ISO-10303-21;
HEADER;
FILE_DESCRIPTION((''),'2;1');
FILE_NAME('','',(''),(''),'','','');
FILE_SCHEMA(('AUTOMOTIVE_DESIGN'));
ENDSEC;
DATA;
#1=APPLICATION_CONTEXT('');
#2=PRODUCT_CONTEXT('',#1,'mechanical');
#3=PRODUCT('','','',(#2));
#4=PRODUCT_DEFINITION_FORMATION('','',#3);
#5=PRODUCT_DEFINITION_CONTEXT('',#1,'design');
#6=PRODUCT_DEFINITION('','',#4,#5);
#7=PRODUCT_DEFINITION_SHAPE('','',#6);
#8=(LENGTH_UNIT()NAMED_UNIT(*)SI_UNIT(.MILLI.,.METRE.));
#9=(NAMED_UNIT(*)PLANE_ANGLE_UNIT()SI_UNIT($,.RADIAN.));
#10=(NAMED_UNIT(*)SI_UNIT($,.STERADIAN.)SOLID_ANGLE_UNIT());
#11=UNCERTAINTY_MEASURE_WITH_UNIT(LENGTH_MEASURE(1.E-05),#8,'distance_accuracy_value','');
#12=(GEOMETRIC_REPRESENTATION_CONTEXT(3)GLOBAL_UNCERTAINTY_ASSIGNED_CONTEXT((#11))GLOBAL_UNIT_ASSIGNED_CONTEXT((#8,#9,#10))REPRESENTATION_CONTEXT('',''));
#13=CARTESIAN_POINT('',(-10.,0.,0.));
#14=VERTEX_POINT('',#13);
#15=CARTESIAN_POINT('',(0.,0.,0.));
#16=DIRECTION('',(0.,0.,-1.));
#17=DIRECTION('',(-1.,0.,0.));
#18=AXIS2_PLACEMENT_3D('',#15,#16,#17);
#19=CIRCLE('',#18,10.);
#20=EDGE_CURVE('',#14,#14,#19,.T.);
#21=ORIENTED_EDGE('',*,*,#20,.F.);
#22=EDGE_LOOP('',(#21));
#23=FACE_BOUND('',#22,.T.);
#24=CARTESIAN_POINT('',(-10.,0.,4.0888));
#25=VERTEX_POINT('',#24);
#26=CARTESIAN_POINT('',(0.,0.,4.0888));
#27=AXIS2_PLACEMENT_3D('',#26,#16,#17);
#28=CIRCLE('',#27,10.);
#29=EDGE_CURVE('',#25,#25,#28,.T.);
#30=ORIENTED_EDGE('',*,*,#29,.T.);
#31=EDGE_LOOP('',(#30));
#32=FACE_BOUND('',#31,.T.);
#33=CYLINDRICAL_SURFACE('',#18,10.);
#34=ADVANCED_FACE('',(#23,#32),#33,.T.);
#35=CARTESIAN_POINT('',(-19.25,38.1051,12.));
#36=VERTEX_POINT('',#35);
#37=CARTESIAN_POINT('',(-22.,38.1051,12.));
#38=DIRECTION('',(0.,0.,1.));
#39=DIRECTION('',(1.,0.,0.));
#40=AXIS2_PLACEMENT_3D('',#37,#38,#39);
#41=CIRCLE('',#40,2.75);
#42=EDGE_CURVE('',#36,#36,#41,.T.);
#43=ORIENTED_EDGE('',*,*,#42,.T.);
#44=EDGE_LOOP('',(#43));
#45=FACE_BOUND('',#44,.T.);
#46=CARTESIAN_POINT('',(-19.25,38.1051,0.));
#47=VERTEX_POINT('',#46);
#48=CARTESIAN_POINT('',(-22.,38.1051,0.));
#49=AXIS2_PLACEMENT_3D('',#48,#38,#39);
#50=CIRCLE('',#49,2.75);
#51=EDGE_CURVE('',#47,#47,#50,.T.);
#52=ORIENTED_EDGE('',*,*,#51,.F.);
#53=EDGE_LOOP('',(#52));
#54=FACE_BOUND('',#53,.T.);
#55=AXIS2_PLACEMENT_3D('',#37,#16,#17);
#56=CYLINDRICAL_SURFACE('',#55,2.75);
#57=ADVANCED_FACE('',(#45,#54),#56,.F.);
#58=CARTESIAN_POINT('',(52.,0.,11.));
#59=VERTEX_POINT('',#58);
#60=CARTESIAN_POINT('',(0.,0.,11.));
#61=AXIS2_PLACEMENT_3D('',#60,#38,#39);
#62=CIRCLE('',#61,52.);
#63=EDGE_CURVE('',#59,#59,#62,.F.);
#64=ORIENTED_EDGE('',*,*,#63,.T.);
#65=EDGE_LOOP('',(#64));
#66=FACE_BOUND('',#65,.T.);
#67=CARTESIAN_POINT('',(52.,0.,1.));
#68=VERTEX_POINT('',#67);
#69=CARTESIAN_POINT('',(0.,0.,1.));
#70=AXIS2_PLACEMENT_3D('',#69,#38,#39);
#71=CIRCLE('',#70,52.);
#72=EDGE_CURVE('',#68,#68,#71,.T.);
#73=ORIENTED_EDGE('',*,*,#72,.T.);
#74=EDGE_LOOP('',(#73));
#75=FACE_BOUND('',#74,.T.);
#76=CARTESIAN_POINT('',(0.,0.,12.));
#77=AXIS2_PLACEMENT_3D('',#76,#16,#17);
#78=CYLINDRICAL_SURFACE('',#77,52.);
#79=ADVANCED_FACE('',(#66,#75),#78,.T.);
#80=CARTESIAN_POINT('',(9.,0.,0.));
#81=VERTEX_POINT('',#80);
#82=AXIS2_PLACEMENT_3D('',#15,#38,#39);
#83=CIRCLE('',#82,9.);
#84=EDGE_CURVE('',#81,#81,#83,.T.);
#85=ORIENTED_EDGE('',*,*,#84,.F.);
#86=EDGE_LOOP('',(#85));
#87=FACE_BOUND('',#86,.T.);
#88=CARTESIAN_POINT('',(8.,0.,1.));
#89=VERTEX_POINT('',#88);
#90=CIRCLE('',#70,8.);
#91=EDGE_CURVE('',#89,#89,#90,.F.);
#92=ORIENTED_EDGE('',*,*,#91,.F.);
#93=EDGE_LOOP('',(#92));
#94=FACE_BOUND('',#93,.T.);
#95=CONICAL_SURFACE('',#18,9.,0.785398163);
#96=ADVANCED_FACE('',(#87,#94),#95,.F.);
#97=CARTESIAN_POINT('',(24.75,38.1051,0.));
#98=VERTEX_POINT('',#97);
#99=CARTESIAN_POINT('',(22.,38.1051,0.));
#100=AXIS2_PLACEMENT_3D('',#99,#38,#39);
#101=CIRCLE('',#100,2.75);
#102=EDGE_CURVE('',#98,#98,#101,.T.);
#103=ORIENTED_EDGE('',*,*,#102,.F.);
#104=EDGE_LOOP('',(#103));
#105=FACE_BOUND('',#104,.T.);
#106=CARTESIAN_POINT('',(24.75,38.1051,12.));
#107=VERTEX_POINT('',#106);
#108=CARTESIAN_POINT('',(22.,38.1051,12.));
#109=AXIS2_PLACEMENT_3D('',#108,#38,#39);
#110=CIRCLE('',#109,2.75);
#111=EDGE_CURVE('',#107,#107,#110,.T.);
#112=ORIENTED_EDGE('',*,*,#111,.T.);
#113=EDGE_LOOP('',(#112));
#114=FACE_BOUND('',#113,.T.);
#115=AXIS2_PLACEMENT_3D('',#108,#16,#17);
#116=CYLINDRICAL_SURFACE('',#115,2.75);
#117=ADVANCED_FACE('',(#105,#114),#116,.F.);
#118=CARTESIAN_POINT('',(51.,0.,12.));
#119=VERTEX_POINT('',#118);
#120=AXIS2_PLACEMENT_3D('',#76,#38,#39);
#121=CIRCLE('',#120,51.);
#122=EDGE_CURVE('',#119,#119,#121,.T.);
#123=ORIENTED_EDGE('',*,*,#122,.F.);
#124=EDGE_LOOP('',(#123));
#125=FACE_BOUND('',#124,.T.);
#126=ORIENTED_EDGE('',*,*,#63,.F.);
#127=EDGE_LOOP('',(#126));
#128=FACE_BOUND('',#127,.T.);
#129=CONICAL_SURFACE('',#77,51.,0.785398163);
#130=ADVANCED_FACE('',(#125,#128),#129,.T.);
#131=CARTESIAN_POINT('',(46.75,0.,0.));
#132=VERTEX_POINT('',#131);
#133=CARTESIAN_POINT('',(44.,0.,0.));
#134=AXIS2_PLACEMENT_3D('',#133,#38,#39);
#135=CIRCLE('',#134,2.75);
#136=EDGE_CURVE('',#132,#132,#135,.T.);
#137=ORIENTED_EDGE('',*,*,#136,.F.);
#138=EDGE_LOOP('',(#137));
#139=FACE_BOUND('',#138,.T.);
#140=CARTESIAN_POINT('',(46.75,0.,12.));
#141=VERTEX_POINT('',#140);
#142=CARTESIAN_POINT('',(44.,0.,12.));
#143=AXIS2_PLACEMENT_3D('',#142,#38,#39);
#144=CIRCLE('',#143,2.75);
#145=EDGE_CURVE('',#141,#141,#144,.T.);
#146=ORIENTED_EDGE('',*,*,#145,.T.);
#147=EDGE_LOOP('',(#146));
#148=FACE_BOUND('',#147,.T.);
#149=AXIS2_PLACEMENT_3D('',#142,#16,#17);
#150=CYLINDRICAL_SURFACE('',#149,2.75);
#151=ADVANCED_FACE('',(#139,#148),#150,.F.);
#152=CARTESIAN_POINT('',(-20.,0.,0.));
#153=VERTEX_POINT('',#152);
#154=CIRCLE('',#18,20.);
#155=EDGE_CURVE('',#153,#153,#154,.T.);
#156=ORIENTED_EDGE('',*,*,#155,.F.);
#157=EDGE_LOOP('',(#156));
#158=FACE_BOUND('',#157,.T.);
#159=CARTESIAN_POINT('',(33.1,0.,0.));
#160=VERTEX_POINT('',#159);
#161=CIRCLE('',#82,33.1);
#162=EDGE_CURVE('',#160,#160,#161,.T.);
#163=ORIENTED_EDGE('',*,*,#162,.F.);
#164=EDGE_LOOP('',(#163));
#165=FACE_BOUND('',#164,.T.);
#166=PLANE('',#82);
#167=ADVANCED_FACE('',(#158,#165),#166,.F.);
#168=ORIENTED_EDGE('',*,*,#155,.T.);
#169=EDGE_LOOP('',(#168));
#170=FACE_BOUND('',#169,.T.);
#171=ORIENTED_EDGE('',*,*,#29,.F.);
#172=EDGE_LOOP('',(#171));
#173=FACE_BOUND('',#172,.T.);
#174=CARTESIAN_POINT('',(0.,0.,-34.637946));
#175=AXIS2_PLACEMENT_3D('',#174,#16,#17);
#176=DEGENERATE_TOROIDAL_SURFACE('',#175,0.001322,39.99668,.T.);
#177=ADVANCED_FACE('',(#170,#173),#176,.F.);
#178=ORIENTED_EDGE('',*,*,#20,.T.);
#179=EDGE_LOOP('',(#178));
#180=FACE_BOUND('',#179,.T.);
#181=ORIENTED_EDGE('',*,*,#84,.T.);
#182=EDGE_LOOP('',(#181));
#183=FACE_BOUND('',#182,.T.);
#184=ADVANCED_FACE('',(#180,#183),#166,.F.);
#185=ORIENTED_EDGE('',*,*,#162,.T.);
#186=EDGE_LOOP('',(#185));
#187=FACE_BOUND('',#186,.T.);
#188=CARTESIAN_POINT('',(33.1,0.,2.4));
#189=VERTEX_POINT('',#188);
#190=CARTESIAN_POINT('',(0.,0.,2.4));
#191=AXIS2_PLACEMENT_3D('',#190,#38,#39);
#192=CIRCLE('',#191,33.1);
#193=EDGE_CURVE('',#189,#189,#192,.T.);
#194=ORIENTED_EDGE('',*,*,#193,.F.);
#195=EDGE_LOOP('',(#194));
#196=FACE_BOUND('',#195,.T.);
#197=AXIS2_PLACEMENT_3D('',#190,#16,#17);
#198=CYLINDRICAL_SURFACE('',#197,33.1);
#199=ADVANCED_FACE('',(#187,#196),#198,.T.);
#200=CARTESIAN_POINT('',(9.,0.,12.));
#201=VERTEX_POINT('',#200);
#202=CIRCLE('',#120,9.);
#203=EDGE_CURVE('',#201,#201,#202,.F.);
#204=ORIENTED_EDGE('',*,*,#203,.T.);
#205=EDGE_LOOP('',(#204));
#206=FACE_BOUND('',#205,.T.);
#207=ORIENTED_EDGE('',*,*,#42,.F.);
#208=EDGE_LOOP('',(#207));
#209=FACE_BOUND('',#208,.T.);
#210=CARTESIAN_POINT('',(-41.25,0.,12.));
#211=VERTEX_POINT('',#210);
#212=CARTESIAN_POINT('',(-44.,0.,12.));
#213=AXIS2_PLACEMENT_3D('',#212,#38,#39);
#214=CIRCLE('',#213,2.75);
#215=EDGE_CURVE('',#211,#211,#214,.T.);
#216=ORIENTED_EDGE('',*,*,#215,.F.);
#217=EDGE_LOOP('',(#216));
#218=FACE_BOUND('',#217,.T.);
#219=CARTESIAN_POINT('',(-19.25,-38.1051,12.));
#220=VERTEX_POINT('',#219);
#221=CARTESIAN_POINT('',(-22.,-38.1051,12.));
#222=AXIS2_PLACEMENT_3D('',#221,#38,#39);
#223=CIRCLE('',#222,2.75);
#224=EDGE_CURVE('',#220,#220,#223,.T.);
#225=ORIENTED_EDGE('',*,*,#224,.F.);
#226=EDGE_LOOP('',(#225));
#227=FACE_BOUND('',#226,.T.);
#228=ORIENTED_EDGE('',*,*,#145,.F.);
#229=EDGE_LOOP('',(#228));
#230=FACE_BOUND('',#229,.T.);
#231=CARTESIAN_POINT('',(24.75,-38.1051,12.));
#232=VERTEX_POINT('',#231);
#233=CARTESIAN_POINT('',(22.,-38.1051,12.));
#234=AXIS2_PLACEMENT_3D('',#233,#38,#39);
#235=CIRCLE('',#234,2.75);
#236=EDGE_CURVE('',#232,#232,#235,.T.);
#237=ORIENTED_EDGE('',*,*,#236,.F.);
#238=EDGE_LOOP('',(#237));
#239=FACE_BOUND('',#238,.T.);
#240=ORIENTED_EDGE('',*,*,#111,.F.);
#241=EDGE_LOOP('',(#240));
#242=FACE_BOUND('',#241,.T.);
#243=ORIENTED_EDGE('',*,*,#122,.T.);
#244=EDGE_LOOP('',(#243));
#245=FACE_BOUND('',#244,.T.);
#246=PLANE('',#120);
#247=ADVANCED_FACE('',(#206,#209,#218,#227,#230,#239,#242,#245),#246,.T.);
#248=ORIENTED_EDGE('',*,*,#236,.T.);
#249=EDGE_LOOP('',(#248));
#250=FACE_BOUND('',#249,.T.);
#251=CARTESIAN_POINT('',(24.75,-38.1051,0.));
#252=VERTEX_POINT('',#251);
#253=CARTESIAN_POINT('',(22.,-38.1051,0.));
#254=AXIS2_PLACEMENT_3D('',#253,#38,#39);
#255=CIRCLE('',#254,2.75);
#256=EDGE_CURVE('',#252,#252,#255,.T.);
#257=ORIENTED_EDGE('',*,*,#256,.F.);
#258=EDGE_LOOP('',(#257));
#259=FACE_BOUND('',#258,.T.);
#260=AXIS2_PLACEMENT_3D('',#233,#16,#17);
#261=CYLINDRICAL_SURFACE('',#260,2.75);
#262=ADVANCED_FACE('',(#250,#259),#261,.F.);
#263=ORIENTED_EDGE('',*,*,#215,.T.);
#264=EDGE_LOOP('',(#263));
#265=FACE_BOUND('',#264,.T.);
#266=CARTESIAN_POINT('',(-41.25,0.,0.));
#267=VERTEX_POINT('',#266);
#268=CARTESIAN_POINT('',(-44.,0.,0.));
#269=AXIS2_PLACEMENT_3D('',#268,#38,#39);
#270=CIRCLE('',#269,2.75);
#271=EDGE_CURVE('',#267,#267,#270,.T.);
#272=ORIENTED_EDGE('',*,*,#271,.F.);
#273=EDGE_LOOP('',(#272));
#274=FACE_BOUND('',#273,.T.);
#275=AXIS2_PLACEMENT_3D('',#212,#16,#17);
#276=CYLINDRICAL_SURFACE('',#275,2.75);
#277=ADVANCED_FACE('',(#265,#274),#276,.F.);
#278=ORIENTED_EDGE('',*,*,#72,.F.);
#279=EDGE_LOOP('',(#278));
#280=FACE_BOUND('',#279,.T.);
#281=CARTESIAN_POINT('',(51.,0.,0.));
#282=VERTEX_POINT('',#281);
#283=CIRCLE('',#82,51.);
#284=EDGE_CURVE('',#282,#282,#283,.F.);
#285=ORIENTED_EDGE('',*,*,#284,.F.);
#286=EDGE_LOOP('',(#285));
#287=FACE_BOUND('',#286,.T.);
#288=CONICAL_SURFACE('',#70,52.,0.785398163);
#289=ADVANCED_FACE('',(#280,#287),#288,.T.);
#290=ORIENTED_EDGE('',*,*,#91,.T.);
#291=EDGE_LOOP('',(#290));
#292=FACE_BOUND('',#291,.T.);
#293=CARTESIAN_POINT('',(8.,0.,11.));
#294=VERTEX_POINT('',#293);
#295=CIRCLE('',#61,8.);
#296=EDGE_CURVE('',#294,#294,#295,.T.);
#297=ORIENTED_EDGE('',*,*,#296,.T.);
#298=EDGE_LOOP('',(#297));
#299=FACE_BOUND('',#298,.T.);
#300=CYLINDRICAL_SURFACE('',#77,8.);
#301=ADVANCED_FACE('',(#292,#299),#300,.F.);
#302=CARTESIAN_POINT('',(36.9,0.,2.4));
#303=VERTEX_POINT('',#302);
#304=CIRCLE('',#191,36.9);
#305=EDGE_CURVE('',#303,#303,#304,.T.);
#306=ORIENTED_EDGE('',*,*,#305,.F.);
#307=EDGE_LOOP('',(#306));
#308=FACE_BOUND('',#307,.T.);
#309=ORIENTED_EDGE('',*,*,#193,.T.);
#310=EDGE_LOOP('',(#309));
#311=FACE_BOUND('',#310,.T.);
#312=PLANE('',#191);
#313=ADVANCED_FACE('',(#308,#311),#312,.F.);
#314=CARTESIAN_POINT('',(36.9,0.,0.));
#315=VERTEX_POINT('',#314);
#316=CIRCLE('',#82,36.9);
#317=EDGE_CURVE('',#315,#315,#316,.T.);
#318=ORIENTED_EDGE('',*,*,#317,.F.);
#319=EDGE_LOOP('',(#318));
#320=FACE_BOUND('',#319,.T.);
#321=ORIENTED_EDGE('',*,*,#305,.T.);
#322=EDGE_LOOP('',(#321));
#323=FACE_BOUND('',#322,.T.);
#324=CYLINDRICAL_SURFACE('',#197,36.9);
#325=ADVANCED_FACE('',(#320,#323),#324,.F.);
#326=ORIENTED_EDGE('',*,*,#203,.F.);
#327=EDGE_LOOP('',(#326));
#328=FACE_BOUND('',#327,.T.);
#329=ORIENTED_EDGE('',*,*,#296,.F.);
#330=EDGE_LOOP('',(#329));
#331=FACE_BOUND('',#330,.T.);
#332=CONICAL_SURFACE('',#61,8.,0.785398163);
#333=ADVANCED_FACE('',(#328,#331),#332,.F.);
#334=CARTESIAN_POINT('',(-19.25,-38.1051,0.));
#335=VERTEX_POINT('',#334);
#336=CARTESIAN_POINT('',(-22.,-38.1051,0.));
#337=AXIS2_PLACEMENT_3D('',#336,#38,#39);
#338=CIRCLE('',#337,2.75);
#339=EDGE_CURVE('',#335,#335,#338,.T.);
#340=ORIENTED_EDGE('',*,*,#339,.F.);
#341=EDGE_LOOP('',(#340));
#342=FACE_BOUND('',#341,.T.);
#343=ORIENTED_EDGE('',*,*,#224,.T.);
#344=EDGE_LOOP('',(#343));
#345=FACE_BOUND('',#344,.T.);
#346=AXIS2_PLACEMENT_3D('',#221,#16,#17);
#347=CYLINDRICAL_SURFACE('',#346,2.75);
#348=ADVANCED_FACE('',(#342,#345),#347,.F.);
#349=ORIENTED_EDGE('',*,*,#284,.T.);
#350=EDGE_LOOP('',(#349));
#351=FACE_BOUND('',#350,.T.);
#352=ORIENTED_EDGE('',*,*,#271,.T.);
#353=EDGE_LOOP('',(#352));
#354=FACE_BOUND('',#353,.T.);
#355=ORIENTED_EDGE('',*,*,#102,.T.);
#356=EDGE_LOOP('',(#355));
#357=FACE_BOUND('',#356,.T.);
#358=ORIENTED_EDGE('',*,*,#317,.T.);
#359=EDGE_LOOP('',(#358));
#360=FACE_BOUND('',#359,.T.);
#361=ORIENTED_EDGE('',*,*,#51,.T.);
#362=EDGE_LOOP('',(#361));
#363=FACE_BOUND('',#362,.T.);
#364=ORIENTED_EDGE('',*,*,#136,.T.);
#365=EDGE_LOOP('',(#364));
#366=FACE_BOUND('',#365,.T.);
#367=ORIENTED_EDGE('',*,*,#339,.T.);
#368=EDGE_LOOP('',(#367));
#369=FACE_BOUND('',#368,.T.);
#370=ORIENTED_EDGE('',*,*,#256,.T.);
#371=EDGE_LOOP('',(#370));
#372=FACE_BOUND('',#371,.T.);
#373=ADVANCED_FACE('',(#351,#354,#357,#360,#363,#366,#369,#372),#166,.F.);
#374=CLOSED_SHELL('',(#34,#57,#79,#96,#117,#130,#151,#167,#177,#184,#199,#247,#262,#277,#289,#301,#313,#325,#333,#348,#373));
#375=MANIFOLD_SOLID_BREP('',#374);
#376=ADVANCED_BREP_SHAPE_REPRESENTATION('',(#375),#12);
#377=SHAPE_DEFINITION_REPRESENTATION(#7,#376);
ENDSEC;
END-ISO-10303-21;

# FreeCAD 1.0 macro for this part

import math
import FreeCAD as App
import Part
import Sketcher

V = App.Vector


def edges_at(feature, points):
    """Names of the edges that pass closest to the given points."""
    edges = feature.Shape.Edges
    near = lambda p: min(range(len(edges)), key=lambda i: edges[i].distToShape(Part.Vertex(*p))[0])
    return sorted({f"Edge{near(p) + 1}" for p in points})

doc = App.newDocument("Part")
body = doc.addObject("PartDesign::Body", "Body")

# Sketch on XY plane
sketch1 = doc.addObject("Sketcher::SketchObject", "Sketch")
body.addObject(sketch1)
sketch1.AttachmentSupport = (doc.XY_Plane, [""])
sketch1.MapMode = "FlatFace"
sketch1.addGeometry(Part.Circle(V(0, 0, 0), V(0, 0, 1), 52), False)
sketch1.addConstraint([
    Sketcher.Constraint("Coincident", 0, 3, -1, 1),
    Sketcher.Constraint("Diameter", 0, 104.0),
])
pad1 = doc.addObject("PartDesign::Pad", "Pad")
body.addObject(pad1)
pad1.Profile = sketch1
pad1.Length = 12

# Sketch on XY plane
sketch2 = doc.addObject("Sketcher::SketchObject", "Sketch001")
body.addObject(sketch2)
sketch2.AttachmentSupport = (doc.XY_Plane, [""])
sketch2.MapMode = "FlatFace"
sketch2.addGeometry(Part.Circle(V(0, 0, 0), V(0, 0, 1), 8), False)
sketch2.addConstraint([
    Sketcher.Constraint("Coincident", 0, 3, -1, 1),
    Sketcher.Constraint("Diameter", 0, 16.0),
])
pocket1 = doc.addObject("PartDesign::Pocket", "Pocket")
body.addObject(pocket1)
pocket1.Profile = sketch2
pocket1.Length = 12
pocket1.Reversed = True
doc.recompute()

chamfer = doc.addObject("PartDesign::Chamfer", "Chamfer")
body.addObject(chamfer)
chamfer.Base = (pocket1, edges_at(pocket1, [
    (-52, 0, 0),
    (-52, 0, 12),
    (-8, 0, 0),
    (-8, 0, 12),
]))
chamfer.Size = 1

# Sketch on XY plane
sketch3 = doc.addObject("Sketcher::SketchObject", "Sketch002")
body.addObject(sketch3)
sketch3.AttachmentSupport = (doc.XY_Plane, [""])
sketch3.MapMode = "FlatFace"
sketch3.addGeometry([
    Part.Circle(V(44, 0, 0), V(0, 0, 1), 2.8),  # 0
    Part.Circle(V(22, 38.1, 0), V(0, 0, 1), 2.8),  # 1
    Part.Circle(V(-22, 38.1, 0), V(0, 0, 1), 2.8),  # 2
    Part.Circle(V(-44, 0, 0), V(0, 0, 1), 2.8),  # 3
    Part.Circle(V(-22, -38.1, 0), V(0, 0, 1), 2.8),  # 4
    Part.Circle(V(22, -38.1, 0), V(0, 0, 1), 2.8),  # 5
], False)
sketch3.addConstraint([
    Sketcher.Constraint("Equal", 0, 1),
    Sketcher.Constraint("Equal", 1, 2),
    Sketcher.Constraint("Equal", 2, 3),
    Sketcher.Constraint("Equal", 3, 4),
    Sketcher.Constraint("Equal", 4, 5),
    Sketcher.Constraint("Symmetric", 0, 3, 3, 3, -1, 1),
    Sketcher.Constraint("Symmetric", 1, 3, 4, 3, -1, 1),
    Sketcher.Constraint("Symmetric", 2, 3, 5, 3, -1, 1),
    Sketcher.Constraint("Symmetric", 1, 3, 2, 3, -2),
    Sketcher.Constraint("PointOnObject", 0, 3, -1),
    Sketcher.Constraint("Diameter", 0, 5.5),
    Sketcher.Constraint("DistanceX", -1, 1, 0, 3, 44.0),
    Sketcher.Constraint("DistanceX", -1, 1, 1, 3, 22.0),
    Sketcher.Constraint("DistanceY", -1, 1, 1, 3, 38.1051),
])
pocket2 = doc.addObject("PartDesign::Pocket", "Pocket001")
body.addObject(pocket2)
pocket2.Profile = sketch3
pocket2.Length = 12
pocket2.Reversed = True

# Sketch on XZ plane
sketch4 = doc.addObject("Sketcher::SketchObject", "Sketch003")
body.addObject(sketch4)
sketch4.AttachmentSupport = (doc.XZ_Plane, [""])
sketch4.MapMode = "FlatFace"
sketch4.addGeometry([
    Part.LineSegment(V(10, 0, 0), V(10, 4.1, 0)),
    Part.ArcOfCircle(Part.Circle(V(0, -34.6, 0), V(0, 0, 1), 40), math.radians(60), math.radians(75.52)),
    Part.LineSegment(V(20, 0, 0), V(10, 0, 0)),
], False)
sketch4.addConstraint([
    Sketcher.Constraint("Coincident", 0, 2, 1, 2),
    Sketcher.Constraint("Coincident", 1, 1, 2, 1),
    Sketcher.Constraint("Coincident", 2, 2, 0, 1),
    Sketcher.Constraint("Vertical", 0),
    Sketcher.Constraint("Horizontal", 2),
    Sketcher.Constraint("PointOnObject", 1, 1, -1),
    Sketcher.Constraint("DistanceX", 2, 2, 2, 1, 10.0),
    Sketcher.Constraint("DistanceX", -1, 1, 0, 2, 10.0),
    Sketcher.Constraint("Radius", 1, 39.99668),
    Sketcher.Constraint("DistanceY", 0, 1, 0, 2, 4.0888),
])
groove = doc.addObject("PartDesign::Groove", "Groove")
body.addObject(groove)
groove.Profile = sketch4
groove.ReferenceAxis = (sketch4, ["V_Axis"])
groove.Angle = 360

# Sketch on XY plane
sketch5 = doc.addObject("Sketcher::SketchObject", "Sketch004")
body.addObject(sketch5)
sketch5.AttachmentSupport = (doc.XY_Plane, [""])
sketch5.MapMode = "FlatFace"
sketch5.addGeometry([
    Part.Circle(V(0, 0, 0), V(0, 0, 1), 37),
    Part.Circle(V(0, 0, 0), V(0, 0, 1), 33),
], False)
sketch5.addConstraint([
    Sketcher.Constraint("Coincident", 0, 3, -1, 1),
    Sketcher.Constraint("Coincident", 1, 3, -1, 1),
    Sketcher.Constraint("Diameter", 0, 73.8),
    Sketcher.Constraint("Diameter", 1, 66.2),
])
pocket3 = doc.addObject("PartDesign::Pocket", "Pocket002")
body.addObject(pocket3)
pocket3.Profile = sketch5
pocket3.Length = 2.4
pocket3.Reversed = True

doc.recompute()
